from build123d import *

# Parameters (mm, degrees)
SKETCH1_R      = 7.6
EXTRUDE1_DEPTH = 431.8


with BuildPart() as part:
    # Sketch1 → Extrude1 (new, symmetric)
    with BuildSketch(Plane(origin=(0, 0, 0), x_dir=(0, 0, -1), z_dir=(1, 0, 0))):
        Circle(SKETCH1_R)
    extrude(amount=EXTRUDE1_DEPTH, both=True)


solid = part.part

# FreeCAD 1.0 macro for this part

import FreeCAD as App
import Part
import Sketcher

V = App.Vector
Q = App.Units.Quantity

doc = App.newDocument("Part")
params = doc.addObject("Spreadsheet::Sheet", "Params")
for row, (alias, value) in enumerate([
    ("sketch1_diameter", "15.2 mm"),
    ("pad1_length", "863.6 mm"),
], start=1):
    params.set(f"A{row}", alias)
    params.set(f"B{row}", "=" + value)
    params.setAlias(f"B{row}", alias)

body = doc.addObject("PartDesign::Body", "Body")

# Sketch on YZ plane
sketch1 = body.newObject("Sketcher::SketchObject", "Sketch")
sketch1.AttachmentSupport = (doc.getObject("YZ_Plane"), [""])
sketch1.MapMode = "FlatFace"
sketch1.addGeometry(Part.Circle(V(0, 0, 0), V(0, 0, 1), 7.6), False)
sketch1.addConstraint([
    Sketcher.Constraint("Coincident", 0, 3, -1, 1),
    Sketcher.Constraint("Diameter", 0, Q("15.2 mm")),
])
sketch1.setExpression("Constraints[1]", "Params.sketch1_diameter")
pad1 = body.newObject("PartDesign::Pad", "Pad")
pad1.Profile = sketch1
pad1.setExpression("Length", "Params.pad1_length")
pad1.Midplane = True

doc.recompute()
